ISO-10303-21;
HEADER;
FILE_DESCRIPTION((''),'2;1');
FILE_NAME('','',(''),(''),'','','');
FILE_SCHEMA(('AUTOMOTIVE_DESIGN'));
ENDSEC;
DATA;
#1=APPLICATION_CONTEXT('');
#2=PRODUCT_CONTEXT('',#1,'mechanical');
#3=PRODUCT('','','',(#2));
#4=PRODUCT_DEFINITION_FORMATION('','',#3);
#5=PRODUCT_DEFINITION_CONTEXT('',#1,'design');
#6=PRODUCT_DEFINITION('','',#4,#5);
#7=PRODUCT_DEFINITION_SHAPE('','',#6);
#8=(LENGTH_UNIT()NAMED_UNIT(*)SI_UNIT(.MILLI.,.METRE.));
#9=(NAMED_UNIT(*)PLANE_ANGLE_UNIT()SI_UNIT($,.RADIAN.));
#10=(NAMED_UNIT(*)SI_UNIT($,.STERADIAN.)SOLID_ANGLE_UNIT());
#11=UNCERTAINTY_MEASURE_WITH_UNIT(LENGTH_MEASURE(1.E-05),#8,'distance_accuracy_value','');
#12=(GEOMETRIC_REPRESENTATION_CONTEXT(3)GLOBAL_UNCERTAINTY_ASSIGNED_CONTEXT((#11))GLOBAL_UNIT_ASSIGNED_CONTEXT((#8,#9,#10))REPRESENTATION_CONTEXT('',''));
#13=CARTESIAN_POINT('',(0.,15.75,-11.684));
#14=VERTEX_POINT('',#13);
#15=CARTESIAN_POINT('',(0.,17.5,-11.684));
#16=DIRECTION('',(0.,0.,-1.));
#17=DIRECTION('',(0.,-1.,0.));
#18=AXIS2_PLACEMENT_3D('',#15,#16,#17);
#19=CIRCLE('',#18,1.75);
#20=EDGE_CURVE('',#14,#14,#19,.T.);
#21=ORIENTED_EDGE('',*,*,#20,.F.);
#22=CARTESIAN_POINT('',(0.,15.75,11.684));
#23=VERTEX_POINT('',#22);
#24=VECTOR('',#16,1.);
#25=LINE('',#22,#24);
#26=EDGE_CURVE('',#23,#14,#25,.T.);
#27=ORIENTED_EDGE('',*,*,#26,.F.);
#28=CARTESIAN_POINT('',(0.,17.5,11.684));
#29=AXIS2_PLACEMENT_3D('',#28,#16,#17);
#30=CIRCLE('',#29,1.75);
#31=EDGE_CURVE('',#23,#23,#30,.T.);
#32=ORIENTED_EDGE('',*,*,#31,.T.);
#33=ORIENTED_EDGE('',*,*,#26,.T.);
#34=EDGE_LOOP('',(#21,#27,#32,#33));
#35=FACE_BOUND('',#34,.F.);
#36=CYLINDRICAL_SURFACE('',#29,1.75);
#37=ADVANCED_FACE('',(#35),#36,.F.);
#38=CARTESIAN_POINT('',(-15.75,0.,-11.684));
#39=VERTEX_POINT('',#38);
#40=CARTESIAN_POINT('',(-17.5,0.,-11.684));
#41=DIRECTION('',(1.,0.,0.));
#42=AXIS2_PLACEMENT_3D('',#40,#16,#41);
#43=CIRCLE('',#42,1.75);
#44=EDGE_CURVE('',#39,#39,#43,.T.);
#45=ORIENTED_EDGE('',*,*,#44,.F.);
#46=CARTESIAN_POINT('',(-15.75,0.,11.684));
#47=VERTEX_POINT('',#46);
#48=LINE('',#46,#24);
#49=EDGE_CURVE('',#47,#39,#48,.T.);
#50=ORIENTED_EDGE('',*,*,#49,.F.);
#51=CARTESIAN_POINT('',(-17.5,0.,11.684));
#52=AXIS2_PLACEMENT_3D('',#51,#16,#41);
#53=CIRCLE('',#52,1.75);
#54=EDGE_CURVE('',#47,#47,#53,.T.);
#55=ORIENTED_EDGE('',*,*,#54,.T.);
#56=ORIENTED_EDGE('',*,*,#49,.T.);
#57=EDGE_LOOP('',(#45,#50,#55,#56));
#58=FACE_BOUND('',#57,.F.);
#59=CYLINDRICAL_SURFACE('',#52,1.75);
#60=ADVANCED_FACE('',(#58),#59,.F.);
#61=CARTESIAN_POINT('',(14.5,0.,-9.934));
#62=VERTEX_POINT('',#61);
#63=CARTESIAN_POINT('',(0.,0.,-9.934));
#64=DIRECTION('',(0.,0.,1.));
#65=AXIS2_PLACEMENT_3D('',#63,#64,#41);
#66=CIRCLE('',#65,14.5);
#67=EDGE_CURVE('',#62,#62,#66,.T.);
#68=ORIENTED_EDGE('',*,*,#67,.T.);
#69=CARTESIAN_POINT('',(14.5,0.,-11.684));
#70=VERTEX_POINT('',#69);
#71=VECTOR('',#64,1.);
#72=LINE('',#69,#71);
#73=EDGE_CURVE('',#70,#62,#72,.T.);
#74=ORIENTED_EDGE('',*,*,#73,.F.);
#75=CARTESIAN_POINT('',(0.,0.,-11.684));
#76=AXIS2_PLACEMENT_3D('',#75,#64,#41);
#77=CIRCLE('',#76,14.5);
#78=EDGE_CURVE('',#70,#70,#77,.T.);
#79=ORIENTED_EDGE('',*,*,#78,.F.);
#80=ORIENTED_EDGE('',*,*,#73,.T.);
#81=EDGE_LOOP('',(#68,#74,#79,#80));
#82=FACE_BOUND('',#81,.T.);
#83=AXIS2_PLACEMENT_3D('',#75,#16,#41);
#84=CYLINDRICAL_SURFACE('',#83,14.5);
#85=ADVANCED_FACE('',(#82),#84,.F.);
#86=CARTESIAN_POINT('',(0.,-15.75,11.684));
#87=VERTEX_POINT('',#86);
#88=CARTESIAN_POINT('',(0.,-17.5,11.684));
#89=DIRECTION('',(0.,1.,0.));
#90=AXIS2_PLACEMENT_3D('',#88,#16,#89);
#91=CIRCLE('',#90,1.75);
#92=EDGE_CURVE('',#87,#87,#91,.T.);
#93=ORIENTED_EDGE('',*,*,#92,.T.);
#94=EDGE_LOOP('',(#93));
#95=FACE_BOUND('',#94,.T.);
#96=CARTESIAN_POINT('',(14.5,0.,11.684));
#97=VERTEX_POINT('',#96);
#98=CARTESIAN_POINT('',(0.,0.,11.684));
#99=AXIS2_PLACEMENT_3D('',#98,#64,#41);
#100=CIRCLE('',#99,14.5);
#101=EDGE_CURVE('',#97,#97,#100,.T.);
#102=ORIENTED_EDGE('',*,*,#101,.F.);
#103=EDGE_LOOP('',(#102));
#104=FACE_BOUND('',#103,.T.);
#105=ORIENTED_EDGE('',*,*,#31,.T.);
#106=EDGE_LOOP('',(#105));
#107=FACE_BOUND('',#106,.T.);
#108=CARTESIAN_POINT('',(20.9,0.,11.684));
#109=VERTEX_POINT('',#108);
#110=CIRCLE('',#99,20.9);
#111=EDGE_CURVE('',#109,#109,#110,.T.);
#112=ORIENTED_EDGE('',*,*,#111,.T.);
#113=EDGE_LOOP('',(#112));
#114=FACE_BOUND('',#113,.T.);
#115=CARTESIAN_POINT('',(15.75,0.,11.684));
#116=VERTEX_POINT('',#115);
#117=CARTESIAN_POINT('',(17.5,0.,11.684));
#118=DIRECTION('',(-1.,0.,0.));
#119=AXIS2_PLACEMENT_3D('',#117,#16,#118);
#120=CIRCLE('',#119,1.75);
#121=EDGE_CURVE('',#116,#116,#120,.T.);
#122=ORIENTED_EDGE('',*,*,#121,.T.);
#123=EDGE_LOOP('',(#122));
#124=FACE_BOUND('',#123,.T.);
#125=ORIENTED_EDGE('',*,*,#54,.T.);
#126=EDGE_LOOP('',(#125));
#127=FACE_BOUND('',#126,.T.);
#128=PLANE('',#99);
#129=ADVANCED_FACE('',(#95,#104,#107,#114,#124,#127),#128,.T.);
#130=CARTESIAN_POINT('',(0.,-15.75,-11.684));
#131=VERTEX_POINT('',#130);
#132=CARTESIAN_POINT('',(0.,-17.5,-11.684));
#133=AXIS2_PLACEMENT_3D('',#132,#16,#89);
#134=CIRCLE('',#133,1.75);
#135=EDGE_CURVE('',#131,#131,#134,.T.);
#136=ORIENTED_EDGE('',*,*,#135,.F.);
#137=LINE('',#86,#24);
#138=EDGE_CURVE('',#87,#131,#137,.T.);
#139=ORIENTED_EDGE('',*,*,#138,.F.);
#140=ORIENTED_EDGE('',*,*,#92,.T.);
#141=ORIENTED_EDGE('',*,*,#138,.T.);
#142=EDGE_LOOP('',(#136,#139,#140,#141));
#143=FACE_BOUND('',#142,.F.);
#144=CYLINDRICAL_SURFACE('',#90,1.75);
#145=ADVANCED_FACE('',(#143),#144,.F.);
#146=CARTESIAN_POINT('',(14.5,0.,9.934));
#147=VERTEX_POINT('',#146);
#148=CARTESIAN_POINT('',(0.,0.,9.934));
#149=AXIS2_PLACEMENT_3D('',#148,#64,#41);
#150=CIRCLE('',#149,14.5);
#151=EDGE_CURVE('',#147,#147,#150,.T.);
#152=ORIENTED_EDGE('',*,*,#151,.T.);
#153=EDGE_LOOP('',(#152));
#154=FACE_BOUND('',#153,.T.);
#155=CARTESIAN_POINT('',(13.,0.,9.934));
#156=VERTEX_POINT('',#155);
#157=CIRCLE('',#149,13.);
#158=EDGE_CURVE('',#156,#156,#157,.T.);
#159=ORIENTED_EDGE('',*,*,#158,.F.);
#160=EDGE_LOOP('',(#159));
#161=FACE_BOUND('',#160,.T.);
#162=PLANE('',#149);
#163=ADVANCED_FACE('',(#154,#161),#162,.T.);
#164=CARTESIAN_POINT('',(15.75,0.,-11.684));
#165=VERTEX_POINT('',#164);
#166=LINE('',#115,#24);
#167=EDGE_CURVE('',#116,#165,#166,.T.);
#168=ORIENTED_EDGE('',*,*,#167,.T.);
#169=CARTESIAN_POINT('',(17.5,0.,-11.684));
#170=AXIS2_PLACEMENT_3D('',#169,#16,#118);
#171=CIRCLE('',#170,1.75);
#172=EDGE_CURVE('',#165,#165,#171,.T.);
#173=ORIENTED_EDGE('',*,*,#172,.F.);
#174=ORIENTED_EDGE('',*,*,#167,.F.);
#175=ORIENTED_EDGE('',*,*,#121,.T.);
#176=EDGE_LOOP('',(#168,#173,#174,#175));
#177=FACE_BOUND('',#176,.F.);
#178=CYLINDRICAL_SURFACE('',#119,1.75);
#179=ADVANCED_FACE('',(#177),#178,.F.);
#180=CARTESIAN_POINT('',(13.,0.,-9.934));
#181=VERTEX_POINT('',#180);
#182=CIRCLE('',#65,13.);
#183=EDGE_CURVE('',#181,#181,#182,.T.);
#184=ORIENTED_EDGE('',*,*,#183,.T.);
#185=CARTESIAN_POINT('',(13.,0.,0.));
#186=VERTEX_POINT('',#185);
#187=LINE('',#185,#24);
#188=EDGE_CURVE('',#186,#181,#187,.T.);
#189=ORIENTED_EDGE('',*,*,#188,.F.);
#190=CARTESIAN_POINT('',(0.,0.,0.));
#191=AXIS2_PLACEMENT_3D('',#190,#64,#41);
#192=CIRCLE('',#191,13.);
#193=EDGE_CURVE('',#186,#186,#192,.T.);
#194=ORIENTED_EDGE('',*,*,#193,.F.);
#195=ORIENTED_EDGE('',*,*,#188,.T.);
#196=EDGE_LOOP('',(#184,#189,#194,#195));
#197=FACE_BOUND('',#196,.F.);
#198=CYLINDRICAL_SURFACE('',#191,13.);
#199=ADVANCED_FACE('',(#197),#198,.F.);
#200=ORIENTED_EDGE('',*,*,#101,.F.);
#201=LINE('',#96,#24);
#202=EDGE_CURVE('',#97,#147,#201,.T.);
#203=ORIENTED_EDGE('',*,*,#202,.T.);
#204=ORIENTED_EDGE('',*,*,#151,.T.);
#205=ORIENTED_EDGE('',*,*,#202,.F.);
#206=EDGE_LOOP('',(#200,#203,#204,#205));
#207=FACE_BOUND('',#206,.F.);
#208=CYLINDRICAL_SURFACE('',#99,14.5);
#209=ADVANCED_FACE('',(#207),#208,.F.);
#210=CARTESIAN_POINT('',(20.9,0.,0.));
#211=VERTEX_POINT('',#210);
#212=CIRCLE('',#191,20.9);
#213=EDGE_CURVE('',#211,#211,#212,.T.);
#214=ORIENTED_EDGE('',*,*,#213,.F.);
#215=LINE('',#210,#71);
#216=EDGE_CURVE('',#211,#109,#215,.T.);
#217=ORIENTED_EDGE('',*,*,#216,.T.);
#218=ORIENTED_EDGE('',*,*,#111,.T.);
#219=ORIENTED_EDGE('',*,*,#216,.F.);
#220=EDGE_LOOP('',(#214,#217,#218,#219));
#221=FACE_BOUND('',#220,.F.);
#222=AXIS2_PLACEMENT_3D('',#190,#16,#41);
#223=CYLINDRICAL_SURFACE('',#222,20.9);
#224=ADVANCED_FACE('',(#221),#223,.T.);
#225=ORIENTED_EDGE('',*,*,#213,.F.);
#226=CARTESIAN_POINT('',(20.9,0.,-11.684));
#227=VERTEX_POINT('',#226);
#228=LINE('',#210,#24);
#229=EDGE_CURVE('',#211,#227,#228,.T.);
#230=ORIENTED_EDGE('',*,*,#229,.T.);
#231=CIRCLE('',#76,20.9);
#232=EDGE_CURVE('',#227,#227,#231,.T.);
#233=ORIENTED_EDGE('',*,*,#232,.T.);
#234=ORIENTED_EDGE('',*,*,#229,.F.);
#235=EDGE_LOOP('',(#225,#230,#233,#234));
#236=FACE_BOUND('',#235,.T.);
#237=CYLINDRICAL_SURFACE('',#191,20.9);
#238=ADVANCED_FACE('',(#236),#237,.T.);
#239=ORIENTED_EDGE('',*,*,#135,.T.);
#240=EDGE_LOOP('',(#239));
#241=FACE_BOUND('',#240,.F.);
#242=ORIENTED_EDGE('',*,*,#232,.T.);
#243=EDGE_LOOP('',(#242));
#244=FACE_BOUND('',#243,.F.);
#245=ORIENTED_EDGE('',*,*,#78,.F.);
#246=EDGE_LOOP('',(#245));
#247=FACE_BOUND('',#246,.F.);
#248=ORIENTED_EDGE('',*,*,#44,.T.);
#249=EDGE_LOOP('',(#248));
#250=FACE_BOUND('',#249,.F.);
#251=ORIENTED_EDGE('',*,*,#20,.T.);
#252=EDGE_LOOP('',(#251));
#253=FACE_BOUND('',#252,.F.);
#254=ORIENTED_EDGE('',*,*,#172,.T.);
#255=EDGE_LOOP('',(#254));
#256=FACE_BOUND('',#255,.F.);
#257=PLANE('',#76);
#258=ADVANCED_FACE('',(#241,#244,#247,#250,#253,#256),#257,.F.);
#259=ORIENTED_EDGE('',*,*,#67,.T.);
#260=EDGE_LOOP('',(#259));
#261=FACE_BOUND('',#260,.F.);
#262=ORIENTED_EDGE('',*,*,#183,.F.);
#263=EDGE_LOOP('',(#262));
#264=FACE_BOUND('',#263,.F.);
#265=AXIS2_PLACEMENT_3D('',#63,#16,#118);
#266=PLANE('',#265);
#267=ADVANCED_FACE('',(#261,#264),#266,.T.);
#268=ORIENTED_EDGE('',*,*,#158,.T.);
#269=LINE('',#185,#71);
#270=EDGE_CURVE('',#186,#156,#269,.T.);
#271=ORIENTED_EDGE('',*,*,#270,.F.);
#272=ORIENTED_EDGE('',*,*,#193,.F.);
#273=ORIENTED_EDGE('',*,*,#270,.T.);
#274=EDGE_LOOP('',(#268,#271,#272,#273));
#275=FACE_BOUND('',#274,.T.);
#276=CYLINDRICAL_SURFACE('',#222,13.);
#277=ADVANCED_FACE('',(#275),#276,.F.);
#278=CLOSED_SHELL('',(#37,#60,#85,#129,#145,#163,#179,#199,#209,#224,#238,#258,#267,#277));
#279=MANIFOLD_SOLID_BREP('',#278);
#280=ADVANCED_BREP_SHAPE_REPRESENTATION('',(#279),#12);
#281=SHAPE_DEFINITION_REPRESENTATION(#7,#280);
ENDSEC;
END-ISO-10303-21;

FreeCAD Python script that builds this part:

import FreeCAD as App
import Part
import Sketcher

V = App.Vector

doc = App.newDocument("Part")
body = doc.addObject("PartDesign::Body", "Body")

# Sketch on XY plane
sketch1 = body.newObject("Sketcher::SketchObject", "Sketch")
sketch1.AttachmentSupport = (doc.getObject("XY_Plane"), [""])
sketch1.MapMode = "FlatFace"
sketch1.addGeometry([
    Part.Circle(V(0, 0, 0), V(0, 0, 1), 21),
    Part.Circle(V(0, 0, 0), V(0, 0, 1), 13),
], False)
sketch1.addConstraint([
    Sketcher.Constraint("Coincident", 0, 3, -1, 1),
    Sketcher.Constraint("Coincident", 1, 3, -1, 1),
    Sketcher.Constraint("Diameter", 1, 26.0),
    Sketcher.Constraint("Diameter", 0, 41.8),
])
pad1 = body.newObject("PartDesign::Pad", "Pad")
pad1.Profile = sketch1
pad1.Length = 23.368
pad1.Midplane = True

# Sketch on XY plane
sketch2 = body.newObject("Sketcher::SketchObject", "Sketch001")
sketch2.AttachmentSupport = (doc.getObject("XY_Plane"), [""])
sketch2.MapMode = "FlatFace"
sketch2.AttachmentOffset = App.Placement(V(0, 0, 11.684), App.Rotation())
sketch2.addGeometry(Part.Circle(V(0, 17.5, 0), V(0, 0, 1), 1.8), False)
sketch2.addConstraint([
    Sketcher.Constraint("PointOnObject", 0, 3, -2),
    Sketcher.Constraint("Diameter", 0, 3.5),
    Sketcher.Constraint("DistanceY", -1, 1, 0, 3, 17.5),
])
doc.recompute()
hole = body.newObject("PartDesign::Hole", "Hole")
hole.Profile = sketch2
hole.ThreadType = "None"
hole.Diameter = 3.5
hole.DepthType = "ThroughAll"
doc.recompute()

polarpattern = body.newObject("PartDesign::PolarPattern", "PolarPattern")
polarpattern.Originals = [hole]
polarpattern.Axis = (doc.getObject("Z_Axis"), [""])
polarpattern.Angle = 360
polarpattern.Occurrences = 4
body.Tip = polarpattern

# Sketch on XY plane
sketch3 = body.newObject("Sketcher::SketchObject", "Sketch002")
sketch3.AttachmentSupport = (doc.getObject("XY_Plane"), [""])
sketch3.MapMode = "FlatFace"
sketch3.AttachmentOffset = App.Placement(V(0, 0, 11.684), App.Rotation())
sketch3.addGeometry([
    Part.Circle(V(0, 0, 0), V(0, 0, 1), 14),
    Part.Circle(V(0, 0, 0), V(0, 0, 1), 13),
], False)
sketch3.addConstraint([
    Sketcher.Constraint("Coincident", 0, 3, -1, 1),
    Sketcher.Constraint("Coincident", 1, 3, -1, 1),
    Sketcher.Constraint("Diameter", 0, 29.0),
    Sketcher.Constraint("Diameter", 1, 26.0),
])
pocket1 = body.newObject("PartDesign::Pocket", "Pocket")
pocket1.Profile = sketch3
pocket1.Length = 1.75
doc.recompute()

mirrored = body.newObject("PartDesign::Mirrored", "Mirrored")
mirrored.Originals = [pocket1]
mirrored.MirrorPlane = (doc.getObject("XY_Plane"), [""])
body.Tip = mirrored

doc.recompute()
